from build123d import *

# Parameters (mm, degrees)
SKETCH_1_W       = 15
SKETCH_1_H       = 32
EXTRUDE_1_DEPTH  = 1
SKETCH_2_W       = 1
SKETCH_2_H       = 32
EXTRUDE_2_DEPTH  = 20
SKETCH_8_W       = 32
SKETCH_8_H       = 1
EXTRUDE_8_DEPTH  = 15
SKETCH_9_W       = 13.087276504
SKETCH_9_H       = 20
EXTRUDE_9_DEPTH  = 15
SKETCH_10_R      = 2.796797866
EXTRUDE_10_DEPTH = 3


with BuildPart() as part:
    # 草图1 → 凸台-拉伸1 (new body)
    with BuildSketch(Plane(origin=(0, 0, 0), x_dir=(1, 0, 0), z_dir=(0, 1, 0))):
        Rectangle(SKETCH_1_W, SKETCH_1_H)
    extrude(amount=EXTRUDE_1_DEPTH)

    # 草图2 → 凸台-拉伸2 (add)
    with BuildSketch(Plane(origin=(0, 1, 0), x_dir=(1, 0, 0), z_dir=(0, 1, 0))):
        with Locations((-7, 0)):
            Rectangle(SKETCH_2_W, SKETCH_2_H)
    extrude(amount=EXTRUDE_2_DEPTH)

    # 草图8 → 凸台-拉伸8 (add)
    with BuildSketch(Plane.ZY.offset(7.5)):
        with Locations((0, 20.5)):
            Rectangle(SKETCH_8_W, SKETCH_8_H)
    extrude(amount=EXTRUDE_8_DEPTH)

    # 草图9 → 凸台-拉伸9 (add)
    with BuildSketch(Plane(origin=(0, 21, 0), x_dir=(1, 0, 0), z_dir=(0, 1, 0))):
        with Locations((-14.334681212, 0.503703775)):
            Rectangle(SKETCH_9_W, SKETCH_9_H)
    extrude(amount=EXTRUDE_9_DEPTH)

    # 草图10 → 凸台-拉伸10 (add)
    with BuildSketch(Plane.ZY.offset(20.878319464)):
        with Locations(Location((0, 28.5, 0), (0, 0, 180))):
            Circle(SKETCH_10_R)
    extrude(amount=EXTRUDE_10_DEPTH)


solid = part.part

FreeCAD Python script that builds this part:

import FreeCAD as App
import Part
import Sketcher
from FreeCAD import Vector

doc = App.newDocument("Part")
body = doc.addObject("PartDesign::Body", "Body")

# Sketch on XZ plane
sketch1 = body.newObject("Sketcher::SketchObject", "Sketch")
sketch1.AttachmentSupport = (doc.getObject("XZ_Plane"), [""])
sketch1.MapMode = "FlatFace"
sketch1.addGeometry([
    Part.LineSegment(Vector(-8, -16, 0), Vector(-8, 16, 0)),
    Part.LineSegment(Vector(-8, 16, 0), Vector(8, 16, 0)),
    Part.LineSegment(Vector(8, 16, 0), Vector(8, -16, 0)),
    Part.LineSegment(Vector(8, -16, 0), Vector(-8, -16, 0)),
], False)
sketch1.addConstraint([
    Sketcher.Constraint("Coincident", 0, 2, 1, 1),
    Sketcher.Constraint("Coincident", 1, 2, 2, 1),
    Sketcher.Constraint("Coincident", 2, 2, 3, 1),
    Sketcher.Constraint("Coincident", 3, 2, 0, 1),
    Sketcher.Constraint("Vertical", 0),
    Sketcher.Constraint("Horizontal", 1),
    Sketcher.Constraint("Vertical", 2),
    Sketcher.Constraint("Horizontal", 3),
    Sketcher.Constraint("Symmetric", 0, 2, 2, 2, -1, 1),
    Sketcher.Constraint("DistanceX", 1, 1, 1, 2, 15.0),
    Sketcher.Constraint("DistanceY", 0, 1, 0, 2, 32.0),
])
pad1 = body.newObject("PartDesign::Pad", "Pad")
pad1.Profile = sketch1
pad1.Length = 1
pad1.Reversed = True

# Sketch on XZ plane
sketch2 = body.newObject("Sketcher::SketchObject", "Sketch001")
sketch2.AttachmentSupport = (doc.getObject("XZ_Plane"), [""])
sketch2.MapMode = "FlatFace"
sketch2.AttachmentOffset = App.Placement(Vector(0, 0, -1), App.Rotation())
sketch2.addGeometry([
    Part.LineSegment(Vector(-7.5, -16, 0), Vector(-7.5, 16, 0)),
    Part.LineSegment(Vector(-7.5, 16, 0), Vector(-6.5, 16, 0)),
    Part.LineSegment(Vector(-6.5, 16, 0), Vector(-6.5, -16, 0)),
    Part.LineSegment(Vector(-6.5, -16, 0), Vector(-7.5, -16, 0)),
], False)
sketch2.addConstraint([
    Sketcher.Constraint("Coincident", 0, 2, 1, 1),
    Sketcher.Constraint("Coincident", 1, 2, 2, 1),
    Sketcher.Constraint("Coincident", 2, 2, 3, 1),
    Sketcher.Constraint("Coincident", 3, 2, 0, 1),
    Sketcher.Constraint("Vertical", 0),
    Sketcher.Constraint("Horizontal", 1),
    Sketcher.Constraint("Vertical", 2),
    Sketcher.Constraint("Horizontal", 3),
    Sketcher.Constraint("DistanceX", 1, 1, 1, 2, 1.0),
    Sketcher.Constraint("DistanceY", 0, 1, 0, 2, 32.0),
    Sketcher.Constraint("DistanceY", -1, 1, 0, 2, 16.0),
    Sketcher.Constraint("DistanceX", 0, 2, -1, 1, 7.5),
])
pad2 = body.newObject("PartDesign::Pad", "Pad001")
pad2.Profile = sketch2
pad2.Length = 20
pad2.Reversed = True

# Sketch on YZ plane
sketch3 = body.newObject("Sketcher::SketchObject", "Sketch002")
sketch3.AttachmentSupport = (doc.getObject("YZ_Plane"), [""])
sketch3.MapMode = "FlatFace"
sketch3.AttachmentOffset = App.Placement(Vector(0, 0, -7.5), App.Rotation())
sketch3.addGeometry([
    Part.LineSegment(Vector(21, -16, 0), Vector(20, -16, 0)),
    Part.LineSegment(Vector(20, -16, 0), Vector(20, 16, 0)),
    Part.LineSegment(Vector(20, 16, 0), Vector(21, 16, 0)),
    Part.LineSegment(Vector(21, 16, 0), Vector(21, -16, 0)),
], False)
sketch3.addConstraint([
    Sketcher.Constraint("Coincident", 0, 2, 1, 1),
    Sketcher.Constraint("Coincident", 1, 2, 2, 1),
    Sketcher.Constraint("Coincident", 2, 2, 3, 1),
    Sketcher.Constraint("Coincident", 3, 2, 0, 1),
    Sketcher.Constraint("Horizontal", 0),
    Sketcher.Constraint("Vertical", 1),
    Sketcher.Constraint("Horizontal", 2),
    Sketcher.Constraint("Vertical", 3),
    Sketcher.Constraint("DistanceX", 0, 2, 0, 1, 1.0),
    Sketcher.Constraint("DistanceY", 1, 1, 1, 2, 32.0),
    Sketcher.Constraint("DistanceX", -1, 1, 0, 2, 20.0),
    Sketcher.Constraint("DistanceY", 0, 2, -1, 1, 16.0),
])
pad3 = body.newObject("PartDesign::Pad", "Pad002")
pad3.Profile = sketch3
pad3.Length = 15
pad3.Reversed = True

# Sketch on XZ plane
sketch4 = body.newObject("Sketcher::SketchObject", "Sketch003")
sketch4.AttachmentSupport = (doc.getObject("XZ_Plane"), [""])
sketch4.MapMode = "FlatFace"
sketch4.AttachmentOffset = App.Placement(Vector(0, 0, -21), App.Rotation())
sketch4.addGeometry([
    Part.LineSegment(Vector(-21, -11, 0), Vector(-21, 9, 0)),
    Part.LineSegment(Vector(-21, 9, 0), Vector(-8, 9, 0)),
    Part.LineSegment(Vector(-8, 9, 0), Vector(-8, -11, 0)),
    Part.LineSegment(Vector(-8, -11, 0), Vector(-21, -11, 0)),
], False)
sketch4.addConstraint([
    Sketcher.Constraint("Coincident", 0, 2, 1, 1),
    Sketcher.Constraint("Coincident", 1, 2, 2, 1),
    Sketcher.Constraint("Coincident", 2, 2, 3, 1),
    Sketcher.Constraint("Coincident", 3, 2, 0, 1),
    Sketcher.Constraint("Vertical", 0),
    Sketcher.Constraint("Horizontal", 1),
    Sketcher.Constraint("Vertical", 2),
    Sketcher.Constraint("Horizontal", 3),
    Sketcher.Constraint("DistanceY", 0, 1, 0, 2, 20.0),
    Sketcher.Constraint("DistanceX", 1, 1, 1, 2, 13.087277),
    Sketcher.Constraint("DistanceX", 0, 2, -1, 1, 20.878319),
    Sketcher.Constraint("DistanceY", -1, 1, 0, 2, 9.496296),
])
pad4 = body.newObject("PartDesign::Pad", "Pad003")
pad4.Profile = sketch4
pad4.Length = 15
pad4.Reversed = True

# Sketch on YZ plane
sketch5 = body.newObject("Sketcher::SketchObject", "Sketch004")
sketch5.AttachmentSupport = (doc.getObject("YZ_Plane"), [""])
sketch5.MapMode = "FlatFace"
sketch5.AttachmentOffset = App.Placement(Vector(0, 0, -20.878319), App.Rotation())
sketch5.addGeometry(Part.Circle(Vector(28.5, 0, 0), Vector(0, 0, 1), 2.8), False)
sketch5.addConstraint([
    Sketcher.Constraint("PointOnObject", 0, 3, -1),
    Sketcher.Constraint("DistanceX", -1, 1, 0, 3, 28.5),
    Sketcher.Constraint("Diameter", 0, 5.593596),
])
pad5 = body.newObject("PartDesign::Pad", "Pad004")
pad5.Profile = sketch5
pad5.Length = 3
pad5.Reversed = True

doc.recompute()
